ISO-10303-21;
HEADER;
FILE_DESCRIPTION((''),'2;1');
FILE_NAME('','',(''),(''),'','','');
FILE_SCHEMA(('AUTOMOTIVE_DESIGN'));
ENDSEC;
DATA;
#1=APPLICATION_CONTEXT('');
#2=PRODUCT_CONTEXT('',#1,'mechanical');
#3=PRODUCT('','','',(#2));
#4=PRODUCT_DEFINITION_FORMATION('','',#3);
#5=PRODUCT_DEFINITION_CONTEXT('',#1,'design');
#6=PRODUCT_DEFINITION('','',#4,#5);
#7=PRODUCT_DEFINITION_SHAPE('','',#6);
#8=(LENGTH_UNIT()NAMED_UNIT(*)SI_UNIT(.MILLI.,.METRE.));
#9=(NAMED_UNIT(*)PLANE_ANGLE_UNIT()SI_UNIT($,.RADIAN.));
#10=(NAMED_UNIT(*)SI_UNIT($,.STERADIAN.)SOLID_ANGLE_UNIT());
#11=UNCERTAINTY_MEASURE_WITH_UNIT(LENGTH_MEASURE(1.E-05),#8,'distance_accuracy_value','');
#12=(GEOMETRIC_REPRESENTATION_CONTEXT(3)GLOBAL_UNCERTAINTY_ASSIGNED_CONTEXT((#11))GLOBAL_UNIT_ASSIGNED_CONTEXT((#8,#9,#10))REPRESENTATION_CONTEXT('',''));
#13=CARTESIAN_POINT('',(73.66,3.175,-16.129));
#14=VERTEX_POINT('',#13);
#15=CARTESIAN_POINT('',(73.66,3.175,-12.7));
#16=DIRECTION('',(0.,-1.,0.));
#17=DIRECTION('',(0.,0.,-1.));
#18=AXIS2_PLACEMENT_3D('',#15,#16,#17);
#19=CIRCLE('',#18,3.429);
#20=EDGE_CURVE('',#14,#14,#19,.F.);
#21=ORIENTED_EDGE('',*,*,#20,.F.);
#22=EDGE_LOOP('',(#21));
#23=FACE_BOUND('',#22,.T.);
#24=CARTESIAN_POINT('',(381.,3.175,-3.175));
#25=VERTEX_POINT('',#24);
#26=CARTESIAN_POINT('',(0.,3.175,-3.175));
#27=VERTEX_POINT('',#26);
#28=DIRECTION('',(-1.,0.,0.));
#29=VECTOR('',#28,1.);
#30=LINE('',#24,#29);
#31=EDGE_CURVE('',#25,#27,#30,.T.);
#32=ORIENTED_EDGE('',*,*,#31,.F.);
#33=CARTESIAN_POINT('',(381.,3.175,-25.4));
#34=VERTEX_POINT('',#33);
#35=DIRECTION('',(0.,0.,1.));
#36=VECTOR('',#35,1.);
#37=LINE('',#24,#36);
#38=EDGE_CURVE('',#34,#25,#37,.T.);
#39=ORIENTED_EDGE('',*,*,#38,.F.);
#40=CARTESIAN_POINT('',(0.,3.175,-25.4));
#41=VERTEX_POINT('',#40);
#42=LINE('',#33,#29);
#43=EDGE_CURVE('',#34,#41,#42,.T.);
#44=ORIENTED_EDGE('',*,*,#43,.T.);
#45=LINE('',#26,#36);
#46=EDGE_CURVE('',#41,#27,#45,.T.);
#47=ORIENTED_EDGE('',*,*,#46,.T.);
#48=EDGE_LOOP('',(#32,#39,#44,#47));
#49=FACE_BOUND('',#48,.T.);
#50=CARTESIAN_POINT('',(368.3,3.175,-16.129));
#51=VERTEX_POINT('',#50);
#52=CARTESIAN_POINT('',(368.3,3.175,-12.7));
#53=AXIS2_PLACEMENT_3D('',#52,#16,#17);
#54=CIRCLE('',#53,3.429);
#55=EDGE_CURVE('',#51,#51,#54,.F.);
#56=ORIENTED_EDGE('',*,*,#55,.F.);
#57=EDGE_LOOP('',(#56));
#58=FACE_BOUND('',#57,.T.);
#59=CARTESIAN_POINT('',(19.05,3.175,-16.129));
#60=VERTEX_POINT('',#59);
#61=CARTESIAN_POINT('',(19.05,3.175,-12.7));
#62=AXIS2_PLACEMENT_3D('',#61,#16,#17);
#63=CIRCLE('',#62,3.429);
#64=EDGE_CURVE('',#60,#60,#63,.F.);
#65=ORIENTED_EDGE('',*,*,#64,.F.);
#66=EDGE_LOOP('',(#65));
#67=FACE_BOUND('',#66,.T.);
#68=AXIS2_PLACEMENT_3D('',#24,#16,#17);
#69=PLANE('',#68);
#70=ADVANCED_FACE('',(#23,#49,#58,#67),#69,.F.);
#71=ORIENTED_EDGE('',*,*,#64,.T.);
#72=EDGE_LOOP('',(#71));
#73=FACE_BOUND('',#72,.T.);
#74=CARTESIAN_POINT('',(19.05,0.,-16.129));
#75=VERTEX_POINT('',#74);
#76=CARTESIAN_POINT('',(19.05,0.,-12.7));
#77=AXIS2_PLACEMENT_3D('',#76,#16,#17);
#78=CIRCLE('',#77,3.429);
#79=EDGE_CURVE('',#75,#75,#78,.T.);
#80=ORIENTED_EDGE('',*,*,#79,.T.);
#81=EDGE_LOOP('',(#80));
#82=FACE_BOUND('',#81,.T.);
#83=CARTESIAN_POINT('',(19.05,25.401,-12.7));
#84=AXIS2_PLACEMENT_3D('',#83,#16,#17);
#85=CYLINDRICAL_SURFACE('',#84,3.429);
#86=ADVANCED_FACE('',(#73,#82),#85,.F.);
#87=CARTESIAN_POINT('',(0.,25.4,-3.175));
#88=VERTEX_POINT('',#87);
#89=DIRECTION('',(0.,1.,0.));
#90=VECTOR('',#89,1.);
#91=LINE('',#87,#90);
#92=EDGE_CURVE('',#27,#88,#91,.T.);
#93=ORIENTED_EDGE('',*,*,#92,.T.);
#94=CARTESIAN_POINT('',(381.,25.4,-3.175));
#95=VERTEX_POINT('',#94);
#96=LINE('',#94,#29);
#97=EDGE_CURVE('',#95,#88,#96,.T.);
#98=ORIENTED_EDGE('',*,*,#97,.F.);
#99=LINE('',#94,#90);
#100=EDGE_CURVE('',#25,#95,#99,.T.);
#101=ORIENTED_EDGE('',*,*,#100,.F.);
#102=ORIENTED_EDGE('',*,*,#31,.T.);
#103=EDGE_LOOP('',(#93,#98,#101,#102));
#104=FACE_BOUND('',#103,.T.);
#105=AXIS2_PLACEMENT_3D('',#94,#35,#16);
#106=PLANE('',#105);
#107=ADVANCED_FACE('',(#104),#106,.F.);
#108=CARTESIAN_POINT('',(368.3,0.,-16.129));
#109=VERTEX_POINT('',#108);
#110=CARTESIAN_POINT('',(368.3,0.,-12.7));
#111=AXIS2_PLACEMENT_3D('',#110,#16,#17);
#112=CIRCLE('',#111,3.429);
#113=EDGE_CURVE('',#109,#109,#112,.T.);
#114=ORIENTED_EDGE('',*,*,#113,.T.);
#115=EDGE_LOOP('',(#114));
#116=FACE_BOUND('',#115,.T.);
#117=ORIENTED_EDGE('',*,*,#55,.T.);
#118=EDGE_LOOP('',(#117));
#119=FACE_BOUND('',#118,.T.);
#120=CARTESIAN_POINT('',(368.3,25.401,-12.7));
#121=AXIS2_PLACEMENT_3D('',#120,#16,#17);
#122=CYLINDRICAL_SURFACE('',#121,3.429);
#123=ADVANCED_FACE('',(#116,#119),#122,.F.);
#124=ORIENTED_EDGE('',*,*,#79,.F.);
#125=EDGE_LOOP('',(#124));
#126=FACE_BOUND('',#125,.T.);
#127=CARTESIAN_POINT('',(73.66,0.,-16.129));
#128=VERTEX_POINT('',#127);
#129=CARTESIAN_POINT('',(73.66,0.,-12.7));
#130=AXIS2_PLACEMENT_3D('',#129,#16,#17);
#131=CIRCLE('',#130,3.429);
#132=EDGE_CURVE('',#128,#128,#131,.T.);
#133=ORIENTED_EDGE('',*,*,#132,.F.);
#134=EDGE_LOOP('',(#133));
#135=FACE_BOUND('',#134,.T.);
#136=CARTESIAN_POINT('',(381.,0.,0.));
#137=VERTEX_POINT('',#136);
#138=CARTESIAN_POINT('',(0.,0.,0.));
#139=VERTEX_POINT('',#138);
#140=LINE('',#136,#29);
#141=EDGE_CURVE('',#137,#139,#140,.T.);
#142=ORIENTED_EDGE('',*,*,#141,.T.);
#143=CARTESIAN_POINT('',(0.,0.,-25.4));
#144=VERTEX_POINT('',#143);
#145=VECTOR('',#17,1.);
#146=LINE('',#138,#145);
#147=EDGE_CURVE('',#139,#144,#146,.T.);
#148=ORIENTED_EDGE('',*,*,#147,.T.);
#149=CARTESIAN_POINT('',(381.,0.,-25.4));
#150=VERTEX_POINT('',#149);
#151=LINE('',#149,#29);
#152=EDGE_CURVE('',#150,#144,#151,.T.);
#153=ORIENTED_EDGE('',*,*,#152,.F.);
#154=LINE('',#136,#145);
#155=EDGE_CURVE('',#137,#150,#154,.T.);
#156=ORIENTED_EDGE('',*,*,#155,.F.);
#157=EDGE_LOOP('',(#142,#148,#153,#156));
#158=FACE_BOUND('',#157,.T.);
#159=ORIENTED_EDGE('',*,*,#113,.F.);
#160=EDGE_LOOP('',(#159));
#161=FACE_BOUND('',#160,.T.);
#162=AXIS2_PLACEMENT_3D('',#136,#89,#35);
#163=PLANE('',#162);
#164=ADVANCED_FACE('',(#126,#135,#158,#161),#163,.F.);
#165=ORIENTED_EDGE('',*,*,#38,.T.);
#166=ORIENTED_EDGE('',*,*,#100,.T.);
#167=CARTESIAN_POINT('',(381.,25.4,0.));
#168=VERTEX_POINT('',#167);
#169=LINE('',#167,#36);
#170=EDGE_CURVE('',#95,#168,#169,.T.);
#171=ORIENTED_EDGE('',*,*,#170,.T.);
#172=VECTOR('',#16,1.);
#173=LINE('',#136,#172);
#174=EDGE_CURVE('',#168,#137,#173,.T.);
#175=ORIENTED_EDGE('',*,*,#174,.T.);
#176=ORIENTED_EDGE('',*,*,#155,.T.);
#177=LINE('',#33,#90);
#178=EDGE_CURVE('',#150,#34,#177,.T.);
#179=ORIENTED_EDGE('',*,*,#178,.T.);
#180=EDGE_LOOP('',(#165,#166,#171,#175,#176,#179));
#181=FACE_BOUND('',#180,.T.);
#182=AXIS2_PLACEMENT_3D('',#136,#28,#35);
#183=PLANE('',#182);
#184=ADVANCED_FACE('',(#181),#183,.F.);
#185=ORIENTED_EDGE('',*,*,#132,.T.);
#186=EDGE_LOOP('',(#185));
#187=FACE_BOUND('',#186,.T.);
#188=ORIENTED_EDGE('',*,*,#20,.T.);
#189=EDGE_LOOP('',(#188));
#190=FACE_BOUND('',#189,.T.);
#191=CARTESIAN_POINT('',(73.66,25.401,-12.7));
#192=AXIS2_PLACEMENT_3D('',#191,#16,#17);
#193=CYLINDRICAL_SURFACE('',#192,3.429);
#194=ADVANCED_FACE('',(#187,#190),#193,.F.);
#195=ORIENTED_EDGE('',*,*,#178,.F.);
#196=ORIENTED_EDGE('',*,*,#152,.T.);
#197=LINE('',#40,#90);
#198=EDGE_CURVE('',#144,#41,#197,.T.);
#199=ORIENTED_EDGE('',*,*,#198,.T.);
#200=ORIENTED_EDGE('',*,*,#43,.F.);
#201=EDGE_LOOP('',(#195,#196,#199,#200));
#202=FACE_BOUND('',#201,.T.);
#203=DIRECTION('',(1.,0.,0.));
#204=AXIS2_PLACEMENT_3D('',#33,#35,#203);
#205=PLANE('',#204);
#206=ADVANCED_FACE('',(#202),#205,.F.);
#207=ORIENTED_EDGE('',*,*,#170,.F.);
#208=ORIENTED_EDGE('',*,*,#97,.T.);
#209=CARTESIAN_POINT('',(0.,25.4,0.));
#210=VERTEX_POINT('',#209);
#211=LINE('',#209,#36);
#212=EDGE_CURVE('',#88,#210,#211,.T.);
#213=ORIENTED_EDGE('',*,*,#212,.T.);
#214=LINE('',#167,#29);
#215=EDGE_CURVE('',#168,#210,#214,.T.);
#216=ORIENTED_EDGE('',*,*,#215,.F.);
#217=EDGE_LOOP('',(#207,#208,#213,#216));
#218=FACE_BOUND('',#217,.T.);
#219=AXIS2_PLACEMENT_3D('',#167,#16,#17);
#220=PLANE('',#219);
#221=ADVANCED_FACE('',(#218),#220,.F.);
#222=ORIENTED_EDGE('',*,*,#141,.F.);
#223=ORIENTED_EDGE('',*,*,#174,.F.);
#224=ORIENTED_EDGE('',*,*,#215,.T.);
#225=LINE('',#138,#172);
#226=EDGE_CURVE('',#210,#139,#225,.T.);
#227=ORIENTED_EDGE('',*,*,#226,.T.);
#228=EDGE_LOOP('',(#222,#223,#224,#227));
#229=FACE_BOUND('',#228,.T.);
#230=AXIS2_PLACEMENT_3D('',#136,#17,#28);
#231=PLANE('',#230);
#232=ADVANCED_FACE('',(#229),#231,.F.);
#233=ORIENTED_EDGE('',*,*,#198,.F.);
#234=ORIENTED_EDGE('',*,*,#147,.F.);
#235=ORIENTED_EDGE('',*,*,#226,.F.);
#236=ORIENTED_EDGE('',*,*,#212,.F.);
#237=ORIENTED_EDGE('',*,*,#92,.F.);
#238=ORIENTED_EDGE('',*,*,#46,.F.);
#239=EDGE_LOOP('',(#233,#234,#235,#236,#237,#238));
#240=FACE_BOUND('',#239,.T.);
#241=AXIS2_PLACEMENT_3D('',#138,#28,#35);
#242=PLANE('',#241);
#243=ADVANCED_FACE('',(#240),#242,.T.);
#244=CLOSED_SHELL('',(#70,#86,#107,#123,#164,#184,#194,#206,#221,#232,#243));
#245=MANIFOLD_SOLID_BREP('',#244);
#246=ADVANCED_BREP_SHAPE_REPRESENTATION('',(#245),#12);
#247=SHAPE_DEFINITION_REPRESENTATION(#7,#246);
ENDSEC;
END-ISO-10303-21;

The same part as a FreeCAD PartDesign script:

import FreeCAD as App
import Part
import Sketcher
Q = App.Units.Quantity


def add_polygon(sketch, points):
    """Adds a closed chain of lines whose ends are joined by coincident constraints."""
    first, n = sketch.GeometryCount, len(points)
    for a, b in zip(points, points[1:] + points[:1]):
        sketch.addGeometry(Part.LineSegment(App.Vector(*a, 0), App.Vector(*b, 0)), False)
    for i in range(n):
        sketch.addConstraint(Sketcher.Constraint("Coincident", first + i, 2, first + (i + 1) % n, 1))

doc = App.newDocument("Part")
body = doc.addObject("PartDesign::Body", "Body")

sketch1 = body.newObject("Sketcher::SketchObject", "Sketch")
sketch1.AttachmentSupport = (doc.getObject("YZ_Plane"), [""])
sketch1.MapMode = "FlatFace"
add_polygon(sketch1, [(0, 0), (0, -25.4), (3.2, -25.4), (3.2, -3.2), (25.4, -3.2), (25.4, 0)])
sketch1.addConstraint([
    Sketcher.Constraint("Vertical", 0),
    Sketcher.Constraint("Horizontal", 1),
    Sketcher.Constraint("Vertical", 2),
    Sketcher.Constraint("Horizontal", 3),
    Sketcher.Constraint("Vertical", 4),
    Sketcher.Constraint("Horizontal", 5),
    Sketcher.Constraint("Coincident", 5, 2, -1, 1),
    Sketcher.Constraint("Equal", 5, 0),
    Sketcher.Constraint("Equal", 3, 2),
    Sketcher.Constraint("DistanceX", 5, 2, 5, 1, Q("1 in")),
    Sketcher.Constraint("DistanceX", 1, 1, 1, 2, Q("0.125 in")),
])
pad1 = body.newObject("PartDesign::Pad", "Pad")
pad1.Profile = sketch1
pad1.Length = Q("15 in")

sketch2 = body.newObject("Sketcher::SketchObject", "Sketch001")
sketch2.AttachmentSupport = (doc.getObject("XZ_Plane"), [""])
sketch2.MapMode = "FlatFace"
sketch2.addGeometry(Part.Circle(App.Vector(73.7, -12.7, 0), App.Vector(0, 0, 1), 3.4), False)
sketch2.addConstraint([
    Sketcher.Constraint("Diameter", 0, Q("0.27 in")),
    Sketcher.Constraint("DistanceX", -1, 1, 0, 3, Q("2.9 in")),
    Sketcher.Constraint("DistanceY", 0, 3, -1, 1, Q("0.5 in")),
])
pocket1 = body.newObject("PartDesign::Pocket", "Pocket")
pocket1.Profile = sketch2
pocket1.Type = "UpToFirst"

sketch3 = body.newObject("Sketcher::SketchObject", "Sketch002")
sketch3.AttachmentSupport = (doc.getObject("XZ_Plane"), [""])
sketch3.MapMode = "FlatFace"
sketch3.addGeometry(Part.Circle(App.Vector(368.3, -12.7, 0), App.Vector(0, 0, 1), 3.4), False)
sketch3.addConstraint([
    Sketcher.Constraint("Diameter", 0, Q("0.27 in")),
    Sketcher.Constraint("DistanceX", -1, 1, 0, 3, Q("14.5 in")),
    Sketcher.Constraint("DistanceY", 0, 3, -1, 1, Q("0.5 in")),
])
pocket2 = body.newObject("PartDesign::Pocket", "Pocket001")
pocket2.Profile = sketch3
pocket2.Type = "UpToFirst"

sketch4 = body.newObject("Sketcher::SketchObject", "Sketch003")
sketch4.AttachmentSupport = (doc.getObject("XZ_Plane"), [""])
sketch4.MapMode = "FlatFace"
sketch4.addGeometry(Part.Circle(App.Vector(19.1, -12.7, 0), App.Vector(0, 0, 1), 3.4), False)
sketch4.addConstraint([
    Sketcher.Constraint("Diameter", 0, Q("0.27 in")),
    Sketcher.Constraint("DistanceY", 0, 3, -1, 1, Q("0.5 in")),
    Sketcher.Constraint("DistanceX", -1, 1, 0, 3, Q("0.75 in")),
])
pocket3 = body.newObject("PartDesign::Pocket", "Pocket002")
pocket3.Profile = sketch4
pocket3.Type = "UpToFirst"

doc.recompute()
